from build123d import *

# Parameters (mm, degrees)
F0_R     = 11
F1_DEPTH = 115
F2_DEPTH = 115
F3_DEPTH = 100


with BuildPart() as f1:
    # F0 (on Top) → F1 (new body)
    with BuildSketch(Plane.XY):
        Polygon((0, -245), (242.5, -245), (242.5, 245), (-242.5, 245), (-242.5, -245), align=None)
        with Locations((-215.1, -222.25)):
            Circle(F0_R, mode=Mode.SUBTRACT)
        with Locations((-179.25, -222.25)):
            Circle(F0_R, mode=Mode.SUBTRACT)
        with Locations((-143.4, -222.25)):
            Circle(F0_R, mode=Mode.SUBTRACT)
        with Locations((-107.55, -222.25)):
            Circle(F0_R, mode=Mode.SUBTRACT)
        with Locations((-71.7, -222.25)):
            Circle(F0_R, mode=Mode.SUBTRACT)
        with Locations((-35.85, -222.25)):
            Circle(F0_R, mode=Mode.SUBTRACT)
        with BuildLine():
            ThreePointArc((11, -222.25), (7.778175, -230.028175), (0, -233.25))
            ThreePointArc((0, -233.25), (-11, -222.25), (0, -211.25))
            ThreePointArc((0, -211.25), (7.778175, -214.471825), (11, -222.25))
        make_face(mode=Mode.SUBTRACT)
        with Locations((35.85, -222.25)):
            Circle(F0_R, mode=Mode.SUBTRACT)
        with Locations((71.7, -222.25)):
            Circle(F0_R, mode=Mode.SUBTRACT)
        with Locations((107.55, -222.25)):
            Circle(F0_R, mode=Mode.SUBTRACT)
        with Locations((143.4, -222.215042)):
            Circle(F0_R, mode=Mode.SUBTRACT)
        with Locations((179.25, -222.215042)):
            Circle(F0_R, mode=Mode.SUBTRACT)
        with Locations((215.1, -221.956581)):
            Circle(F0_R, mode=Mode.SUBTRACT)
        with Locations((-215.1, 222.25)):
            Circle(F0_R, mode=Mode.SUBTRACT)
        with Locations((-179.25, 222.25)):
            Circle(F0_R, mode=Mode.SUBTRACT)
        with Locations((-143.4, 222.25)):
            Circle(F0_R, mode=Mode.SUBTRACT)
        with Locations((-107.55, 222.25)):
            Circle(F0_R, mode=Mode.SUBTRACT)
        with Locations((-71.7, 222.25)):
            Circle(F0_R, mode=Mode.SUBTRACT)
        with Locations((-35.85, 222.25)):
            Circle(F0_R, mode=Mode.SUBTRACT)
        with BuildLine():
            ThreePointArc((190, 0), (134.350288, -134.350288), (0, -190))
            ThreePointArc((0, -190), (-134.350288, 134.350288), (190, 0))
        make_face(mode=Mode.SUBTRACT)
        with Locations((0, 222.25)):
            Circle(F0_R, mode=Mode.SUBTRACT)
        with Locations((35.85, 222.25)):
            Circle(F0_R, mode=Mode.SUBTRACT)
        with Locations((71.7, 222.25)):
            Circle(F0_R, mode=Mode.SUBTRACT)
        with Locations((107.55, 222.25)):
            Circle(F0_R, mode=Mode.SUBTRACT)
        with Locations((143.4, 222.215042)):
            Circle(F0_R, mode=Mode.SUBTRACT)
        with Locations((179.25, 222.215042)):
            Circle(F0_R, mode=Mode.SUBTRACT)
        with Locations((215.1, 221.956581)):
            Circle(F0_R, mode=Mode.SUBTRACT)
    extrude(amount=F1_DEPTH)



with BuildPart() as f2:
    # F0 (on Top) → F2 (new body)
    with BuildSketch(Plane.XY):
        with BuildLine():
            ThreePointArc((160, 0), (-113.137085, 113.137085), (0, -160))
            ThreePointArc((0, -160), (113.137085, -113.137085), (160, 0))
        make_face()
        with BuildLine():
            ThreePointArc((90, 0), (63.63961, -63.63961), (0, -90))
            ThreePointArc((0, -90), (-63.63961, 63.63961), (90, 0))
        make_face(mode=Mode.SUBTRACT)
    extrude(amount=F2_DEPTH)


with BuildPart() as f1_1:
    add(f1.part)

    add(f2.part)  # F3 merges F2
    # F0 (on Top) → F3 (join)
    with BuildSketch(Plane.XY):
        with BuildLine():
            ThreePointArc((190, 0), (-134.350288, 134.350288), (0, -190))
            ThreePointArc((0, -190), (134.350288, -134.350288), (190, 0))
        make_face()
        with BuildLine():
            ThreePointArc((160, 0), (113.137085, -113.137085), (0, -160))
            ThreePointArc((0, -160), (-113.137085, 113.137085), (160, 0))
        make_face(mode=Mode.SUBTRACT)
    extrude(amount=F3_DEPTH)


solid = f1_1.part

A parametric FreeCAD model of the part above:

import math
import FreeCAD as App
import Part
import Sketcher

doc = App.newDocument("Part")
params = doc.addObject("Spreadsheet::Sheet", "Params")
for row, (alias, value) in enumerate([
    ("sketch1_diameter", "22 mm"),
    ("sketch1_radius", "190 mm"),
    ("sketch1_width", "485 mm"),
    ("sketch1_height", "490 mm"),
    ("pad1_length", "115 mm"),
    ("sketch2_radius", "160 mm"),
    ("sketch2_radius2", "90 mm"),
    ("pad2_length", "115 mm"),
    ("sketch3_radius", "190 mm"),
    ("sketch3_radius2", "160 mm"),
    ("pad3_length", "100 mm"),
], start=1):
    params.set(f"A{row}", alias)
    params.set(f"B{row}", "=" + value)
    params.setAlias(f"B{row}", alias)

body = doc.addObject("PartDesign::Body", "Body")

sketch1 = body.newObject("Sketcher::SketchObject", "Sketch")
sketch1.AttachmentSupport = (doc.getObject("XY_Plane"), [""])
sketch1.MapMode = "FlatFace"
sketch1.addGeometry(Part.LineSegment(App.Vector(242, -245, 0), App.Vector(242, 245, 0)), False)
sketch1.addGeometry(Part.LineSegment(App.Vector(242, 245, 0), App.Vector(-242, 245, 0)), False)
sketch1.addGeometry(Part.LineSegment(App.Vector(-242, 245, 0), App.Vector(-242, -245, 0)), False)
sketch1.addGeometry(Part.LineSegment(App.Vector(-242, -245, 0), App.Vector(242, -245, 0)), False)
sketch1.addGeometry(Part.Circle(App.Vector(-215, -222, 0), App.Vector(0, 0, 1), 11), False)
sketch1.addGeometry(Part.Circle(App.Vector(-179, -222, 0), App.Vector(0, 0, 1), 11), False)
sketch1.addGeometry(Part.Circle(App.Vector(-143, -222, 0), App.Vector(0, 0, 1), 11), False)
sketch1.addGeometry(Part.Circle(App.Vector(-108, -222, 0), App.Vector(0, 0, 1), 11), False)
sketch1.addGeometry(Part.Circle(App.Vector(-72, -222, 0), App.Vector(0, 0, 1), 11), False)
sketch1.addGeometry(Part.Circle(App.Vector(-36, -222, 0), App.Vector(0, 0, 1), 11), False)
sketch1.addGeometry(Part.ArcOfCircle(Part.Circle(App.Vector(0, -222, 0), App.Vector(0, 0, 1), 11), math.radians(0), math.radians(90)), False)
sketch1.addGeometry(Part.ArcOfCircle(Part.Circle(App.Vector(0, -222, 0), App.Vector(0, 0, 1), 11), math.radians(-90), math.radians(0)), False)
sketch1.addGeometry(Part.ArcOfCircle(Part.Circle(App.Vector(0, -222, 0), App.Vector(0, 0, 1), 11), math.radians(90), math.radians(270)), False)
sketch1.addGeometry(Part.Circle(App.Vector(36, -222, 0), App.Vector(0, 0, 1), 11), False)
sketch1.addGeometry(Part.Circle(App.Vector(72, -222, 0), App.Vector(0, 0, 1), 11), False)
sketch1.addGeometry(Part.Circle(App.Vector(108, -222, 0), App.Vector(0, 0, 1), 11), False)
sketch1.addGeometry(Part.Circle(App.Vector(143, -222, 0), App.Vector(0, 0, 1), 11), False)
sketch1.addGeometry(Part.Circle(App.Vector(179, -222, 0), App.Vector(0, 0, 1), 11), False)
sketch1.addGeometry(Part.Circle(App.Vector(215, -222, 0), App.Vector(0, 0, 1), 11), False)
sketch1.addGeometry(Part.ArcOfCircle(Part.Circle(App.Vector(0, 0, 0), App.Vector(0, 0, 1), 190), math.radians(0), math.radians(270)), False)
sketch1.addGeometry(Part.ArcOfCircle(Part.Circle(App.Vector(0, 0, 0), App.Vector(0, 0, 1), 190), math.radians(-90), math.radians(0)), False)
sketch1.addGeometry(Part.Circle(App.Vector(-215, 222, 0), App.Vector(0, 0, 1), 11), False)
sketch1.addGeometry(Part.Circle(App.Vector(-179, 222, 0), App.Vector(0, 0, 1), 11), False)
sketch1.addGeometry(Part.Circle(App.Vector(-143, 222, 0), App.Vector(0, 0, 1), 11), False)
sketch1.addGeometry(Part.Circle(App.Vector(-108, 222, 0), App.Vector(0, 0, 1), 11), False)
sketch1.addGeometry(Part.Circle(App.Vector(-72, 222, 0), App.Vector(0, 0, 1), 11), False)
sketch1.addGeometry(Part.Circle(App.Vector(-36, 222, 0), App.Vector(0, 0, 1), 11), False)
sketch1.addGeometry(Part.Circle(App.Vector(0, 222, 0), App.Vector(0, 0, 1), 11), False)
sketch1.addGeometry(Part.Circle(App.Vector(36, 222, 0), App.Vector(0, 0, 1), 11), False)
sketch1.addGeometry(Part.Circle(App.Vector(72, 222, 0), App.Vector(0, 0, 1), 11), False)
sketch1.addGeometry(Part.Circle(App.Vector(108, 222, 0), App.Vector(0, 0, 1), 11), False)
sketch1.addGeometry(Part.Circle(App.Vector(143, 222, 0), App.Vector(0, 0, 1), 11), False)
sketch1.addGeometry(Part.Circle(App.Vector(179, 222, 0), App.Vector(0, 0, 1), 11), False)
sketch1.addGeometry(Part.Circle(App.Vector(215, 222, 0), App.Vector(0, 0, 1), 11), False)
sketch1.addConstraint(Sketcher.Constraint("Coincident", 0, 2, 1, 1))
sketch1.addConstraint(Sketcher.Constraint("Coincident", 1, 2, 2, 1))
sketch1.addConstraint(Sketcher.Constraint("Coincident", 2, 2, 3, 1))
sketch1.addConstraint(Sketcher.Constraint("Coincident", 3, 2, 0, 1))
sketch1.addConstraint(Sketcher.Constraint("Tangent", 10, 1, 11, 2))
sketch1.addConstraint(Sketcher.Constraint("Tangent", 11, 1, 12, 2))
sketch1.addConstraint(Sketcher.Constraint("Tangent", 12, 1, 10, 2))
sketch1.addConstraint(Sketcher.Constraint("Tangent", 19, 1, 20, 2))
sketch1.addConstraint(Sketcher.Constraint("Coincident", 20, 1, 19, 2))
sketch1.addConstraint(Sketcher.Constraint("Vertical", 0))
sketch1.addConstraint(Sketcher.Constraint("Horizontal", 1))
sketch1.addConstraint(Sketcher.Constraint("Vertical", 2))
sketch1.addConstraint(Sketcher.Constraint("Horizontal", 3))
sketch1.addConstraint(Sketcher.Constraint("Coincident", 19, 3, -1, 1))
sketch1.addConstraint(Sketcher.Constraint("Equal", 4, 5))
sketch1.addConstraint(Sketcher.Constraint("Equal", 5, 6))
sketch1.addConstraint(Sketcher.Constraint("Equal", 6, 7))
sketch1.addConstraint(Sketcher.Constraint("Equal", 7, 8))
sketch1.addConstraint(Sketcher.Constraint("Equal", 8, 9))
sketch1.addConstraint(Sketcher.Constraint("Equal", 9, 10))
sketch1.addConstraint(Sketcher.Constraint("Equal", 12, 13))
sketch1.addConstraint(Sketcher.Constraint("Equal", 13, 14))
sketch1.addConstraint(Sketcher.Constraint("Equal", 14, 15))
sketch1.addConstraint(Sketcher.Constraint("Equal", 15, 16))
sketch1.addConstraint(Sketcher.Constraint("Equal", 16, 17))
sketch1.addConstraint(Sketcher.Constraint("Equal", 17, 18))
sketch1.addConstraint(Sketcher.Constraint("Equal", 18, 21))
sketch1.addConstraint(Sketcher.Constraint("Equal", 21, 22))
sketch1.addConstraint(Sketcher.Constraint("Equal", 22, 23))
sketch1.addConstraint(Sketcher.Constraint("Equal", 23, 24))
sketch1.addConstraint(Sketcher.Constraint("Equal", 24, 25))
sketch1.addConstraint(Sketcher.Constraint("Equal", 25, 26))
sketch1.addConstraint(Sketcher.Constraint("Equal", 26, 27))
sketch1.addConstraint(Sketcher.Constraint("Equal", 27, 28))
sketch1.addConstraint(Sketcher.Constraint("Equal", 28, 29))
sketch1.addConstraint(Sketcher.Constraint("Equal", 29, 30))
sketch1.addConstraint(Sketcher.Constraint("Equal", 30, 31))
sketch1.addConstraint(Sketcher.Constraint("Equal", 31, 32))
sketch1.addConstraint(Sketcher.Constraint("Equal", 32, 33))
sketch1.addConstraint(Sketcher.Constraint("Symmetric", 15, 3, 24, 3, -1, 1))
sketch1.addConstraint(Sketcher.Constraint("Symmetric", 14, 3, 25, 3, -1, 1))
sketch1.addConstraint(Sketcher.Constraint("Symmetric", 13, 3, 26, 3, -1, 1))
sketch1.addConstraint(Sketcher.Constraint("Symmetric", 10, 3, 27, 3, -1, 1))
sketch1.addConstraint(Sketcher.Constraint("Symmetric", 9, 3, 28, 3, -1, 1))
sketch1.addConstraint(Sketcher.Constraint("Symmetric", 8, 3, 29, 3, -1, 1))
sketch1.addConstraint(Sketcher.Constraint("Symmetric", 7, 3, 30, 3, -1, 1))
sketch1.addConstraint(Sketcher.Constraint("Symmetric", 0, 2, 2, 2, -1, 1))
sketch1.addConstraint(Sketcher.Constraint("Symmetric", 9, 3, 13, 3, -2))
sketch1.addConstraint(Sketcher.Constraint("Symmetric", 8, 3, 14, 3, -2))
sketch1.addConstraint(Sketcher.Constraint("Symmetric", 7, 3, 15, 3, -2))
sketch1.addConstraint(Sketcher.Constraint("Symmetric", 4, 3, 21, 3, -1))
sketch1.addConstraint(Sketcher.Constraint("Symmetric", 5, 3, 22, 3, -1))
sketch1.addConstraint(Sketcher.Constraint("Symmetric", 6, 3, 23, 3, -1))
sketch1.addConstraint(Sketcher.Constraint("Symmetric", 16, 3, 31, 3, -1))
sketch1.addConstraint(Sketcher.Constraint("Symmetric", 17, 3, 32, 3, -1))
sketch1.addConstraint(Sketcher.Constraint("Symmetric", 18, 3, 33, 3, -1))
sketch1.addConstraint(Sketcher.Constraint("PointOnObject", 10, 3, -2))
sketch1.addConstraint(Sketcher.Constraint("PointOnObject", 11, 1, -2))
sketch1.addConstraint(Sketcher.Constraint("PointOnObject", 12, 1, -2))
sketch1.addConstraint(Sketcher.Constraint("PointOnObject", 19, 1, -1))
sketch1.addConstraint(Sketcher.Constraint("PointOnObject", 20, 1, -2))
sketch1.addConstraint(Sketcher.Constraint("Horizontal", 4, 3, 5, 3))
sketch1.addConstraint(Sketcher.Constraint("Horizontal", 5, 3, 6, 3))
sketch1.addConstraint(Sketcher.Constraint("Horizontal", 6, 3, 7, 3))
sketch1.addConstraint(Sketcher.Constraint("Horizontal", 7, 3, 8, 3))
sketch1.addConstraint(Sketcher.Constraint("Horizontal", 8, 3, 9, 3))
sketch1.addConstraint(Sketcher.Constraint("Horizontal", 9, 3, 10, 3))
sketch1.addConstraint(Sketcher.Constraint("Horizontal", 16, 3, 17, 3))
sketch1.addConstraint(Sketcher.Constraint("Horizontal", 15, 3, 10, 1))
sketch1.addConstraint(Sketcher.Constraint("Diameter", 4, 22.0))
sketch1.addConstraint(Sketcher.Constraint("Radius", 19, 190.0))
sketch1.addConstraint(Sketcher.Constraint("DistanceX", 1, 2, 1, 1, 485.0))
sketch1.addConstraint(Sketcher.Constraint("DistanceY", 0, 1, 0, 2, 490.0))
sketch1.addConstraint(Sketcher.Constraint("DistanceX", 4, 3, -1, 1, 215.1))
sketch1.addConstraint(Sketcher.Constraint("DistanceX", 6, 3, -1, 1, 143.4))
sketch1.addConstraint(Sketcher.Constraint("DistanceX", 8, 3, -1, 1, 71.7))
sketch1.addConstraint(Sketcher.Constraint("DistanceX", -1, 1, 16, 3, 143.4))
sketch1.addConstraint(Sketcher.Constraint("DistanceX", -1, 1, 18, 3, 215.1))
sketch1.addConstraint(Sketcher.Constraint("DistanceX", 5, 3, 7, 3, 71.7))
sketch1.addConstraint(Sketcher.Constraint("DistanceX", 7, 3, 9, 3, 71.7))
sketch1.addConstraint(Sketcher.Constraint("DistanceX", 9, 3, 13, 3, 71.7))
sketch1.addConstraint(Sketcher.Constraint("DistanceX", 15, 3, 17, 3, 71.7))
sketch1.addConstraint(Sketcher.Constraint("DistanceY", 4, 3, 21, 3, 444.5))
sketch1.addConstraint(Sketcher.Constraint("DistanceY", 18, 3, -1, 1, 221.956581))
sketch1.addConstraint(Sketcher.Constraint("DistanceY", 11, 3, 16, 3, 0.034959))
sketch1.setExpression("Constraints[69]", "Params.sketch1_diameter")
sketch1.setExpression("Constraints[70]", "Params.sketch1_radius")
sketch1.setExpression("Constraints[71]", "Params.sketch1_width")
sketch1.setExpression("Constraints[72]", "Params.sketch1_height")
pad1 = body.newObject("PartDesign::Pad", "Pad")
pad1.Profile = sketch1
pad1.setExpression("Length", "Params.pad1_length")
body2 = doc.addObject("PartDesign::Body", "Body001")

sketch2 = body2.newObject("Sketcher::SketchObject", "Sketch001")
sketch2.AttachmentSupport = (doc.getObject("XY_Plane001"), [""])
sketch2.MapMode = "FlatFace"
sketch2.addGeometry(Part.ArcOfCircle(Part.Circle(App.Vector(0, 0, 0), App.Vector(0, 0, 1), 160), math.radians(0), math.radians(270)), False)
sketch2.addGeometry(Part.ArcOfCircle(Part.Circle(App.Vector(0, 0, 0), App.Vector(0, 0, 1), 160), math.radians(-90), math.radians(0)), False)
sketch2.addGeometry(Part.ArcOfCircle(Part.Circle(App.Vector(0, 0, 0), App.Vector(0, 0, 1), 90), math.radians(0), math.radians(270)), False)
sketch2.addGeometry(Part.ArcOfCircle(Part.Circle(App.Vector(0, 0, 0), App.Vector(0, 0, 1), 90), math.radians(-90), math.radians(0)), False)
sketch2.addConstraint(Sketcher.Constraint("Tangent", 0, 1, 1, 2))
sketch2.addConstraint(Sketcher.Constraint("Coincident", 1, 1, 0, 2))
sketch2.addConstraint(Sketcher.Constraint("Tangent", 2, 1, 3, 2))
sketch2.addConstraint(Sketcher.Constraint("Coincident", 3, 1, 2, 2))
sketch2.addConstraint(Sketcher.Constraint("Coincident", 0, 3, -1, 1))
sketch2.addConstraint(Sketcher.Constraint("Coincident", 2, 3, -1, 1))
sketch2.addConstraint(Sketcher.Constraint("PointOnObject", 0, 1, -1))
sketch2.addConstraint(Sketcher.Constraint("PointOnObject", 1, 1, -2))
sketch2.addConstraint(Sketcher.Constraint("PointOnObject", 2, 1, -1))
sketch2.addConstraint(Sketcher.Constraint("PointOnObject", 3, 1, -2))
sketch2.addConstraint(Sketcher.Constraint("Radius", 0, 160.0))
sketch2.addConstraint(Sketcher.Constraint("Radius", 2, 90.0))
sketch2.setExpression("Constraints[10]", "Params.sketch2_radius")
sketch2.setExpression("Constraints[11]", "Params.sketch2_radius2")
pad2 = body2.newObject("PartDesign::Pad", "Pad001")
pad2.Profile = sketch2
pad2.setExpression("Length", "Params.pad2_length")
body.AllowCompound = True
doc.recompute()

boolean = body.newObject("PartDesign::Boolean", "Boolean")
boolean.Type = "Fuse"
boolean.addObjects([body2])

sketch3 = body.newObject("Sketcher::SketchObject", "Sketch002")
sketch3.AttachmentSupport = (doc.getObject("XY_Plane"), [""])
sketch3.MapMode = "FlatFace"
sketch3.addGeometry(Part.ArcOfCircle(Part.Circle(App.Vector(0, 0, 0), App.Vector(0, 0, 1), 190), math.radians(0), math.radians(270)), False)
sketch3.addGeometry(Part.ArcOfCircle(Part.Circle(App.Vector(0, 0, 0), App.Vector(0, 0, 1), 190), math.radians(-90), math.radians(0)), False)
sketch3.addGeometry(Part.ArcOfCircle(Part.Circle(App.Vector(0, 0, 0), App.Vector(0, 0, 1), 160), math.radians(0), math.radians(270)), False)
sketch3.addGeometry(Part.ArcOfCircle(Part.Circle(App.Vector(0, 0, 0), App.Vector(0, 0, 1), 160), math.radians(-90), math.radians(0)), False)
sketch3.addConstraint(Sketcher.Constraint("Tangent", 0, 1, 1, 2))
sketch3.addConstraint(Sketcher.Constraint("Coincident", 1, 1, 0, 2))
sketch3.addConstraint(Sketcher.Constraint("Tangent", 2, 1, 3, 2))
sketch3.addConstraint(Sketcher.Constraint("Coincident", 3, 1, 2, 2))
sketch3.addConstraint(Sketcher.Constraint("Coincident", 0, 3, -1, 1))
sketch3.addConstraint(Sketcher.Constraint("Coincident", 2, 3, -1, 1))
sketch3.addConstraint(Sketcher.Constraint("PointOnObject", 0, 1, -1))
sketch3.addConstraint(Sketcher.Constraint("PointOnObject", 1, 1, -2))
sketch3.addConstraint(Sketcher.Constraint("PointOnObject", 2, 1, -1))
sketch3.addConstraint(Sketcher.Constraint("PointOnObject", 3, 1, -2))
sketch3.addConstraint(Sketcher.Constraint("Radius", 0, 190.0))
sketch3.addConstraint(Sketcher.Constraint("Radius", 2, 160.0))
sketch3.setExpression("Constraints[10]", "Params.sketch3_radius")
sketch3.setExpression("Constraints[11]", "Params.sketch3_radius2")
pad3 = body.newObject("PartDesign::Pad", "Pad002")
pad3.Profile = sketch3
pad3.setExpression("Length", "Params.pad3_length")

doc.recompute()
